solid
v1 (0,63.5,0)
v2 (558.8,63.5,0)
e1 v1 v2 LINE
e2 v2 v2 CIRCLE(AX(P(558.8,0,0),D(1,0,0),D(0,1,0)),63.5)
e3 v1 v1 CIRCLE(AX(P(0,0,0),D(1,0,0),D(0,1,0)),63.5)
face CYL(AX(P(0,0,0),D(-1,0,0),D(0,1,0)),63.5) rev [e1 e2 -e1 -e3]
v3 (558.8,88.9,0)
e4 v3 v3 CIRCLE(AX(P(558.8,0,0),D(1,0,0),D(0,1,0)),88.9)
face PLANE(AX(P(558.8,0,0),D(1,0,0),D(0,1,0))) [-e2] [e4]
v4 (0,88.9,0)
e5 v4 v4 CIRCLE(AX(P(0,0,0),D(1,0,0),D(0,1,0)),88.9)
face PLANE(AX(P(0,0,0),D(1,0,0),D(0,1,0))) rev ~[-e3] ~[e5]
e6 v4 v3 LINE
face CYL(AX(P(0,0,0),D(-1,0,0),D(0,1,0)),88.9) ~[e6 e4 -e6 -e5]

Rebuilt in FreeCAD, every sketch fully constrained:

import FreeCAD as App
import Part
import Sketcher
Q = App.Units.Quantity

doc = App.newDocument("Part")
body = doc.addObject("PartDesign::Body", "Body")

# Sketch on YZ plane
sketch1 = body.newObject("Sketcher::SketchObject", "Sketch")
sketch1.AttachmentSupport = (doc.getObject("YZ_Plane"), [""])
sketch1.MapMode = "FlatFace"
sketch1.addGeometry(Part.Circle(App.Vector(0, 0, 0), App.Vector(0, 0, 1), 89), False)
sketch1.addGeometry(Part.Circle(App.Vector(0, 0, 0), App.Vector(0, 0, 1), 64), False)
sketch1.addConstraint(Sketcher.Constraint("Coincident", 0, 3, -1, 1))
sketch1.addConstraint(Sketcher.Constraint("Coincident", 1, 3, -1, 1))
sketch1.addConstraint(Sketcher.Constraint("Diameter", 0, Q("7 in")))
sketch1.addConstraint(Sketcher.Constraint("Diameter", 1, Q("5 in")))
pad1 = body.newObject("PartDesign::Pad", "Pad")
pad1.Profile = sketch1
pad1.Length = Q("22 in")

doc.recompute()
